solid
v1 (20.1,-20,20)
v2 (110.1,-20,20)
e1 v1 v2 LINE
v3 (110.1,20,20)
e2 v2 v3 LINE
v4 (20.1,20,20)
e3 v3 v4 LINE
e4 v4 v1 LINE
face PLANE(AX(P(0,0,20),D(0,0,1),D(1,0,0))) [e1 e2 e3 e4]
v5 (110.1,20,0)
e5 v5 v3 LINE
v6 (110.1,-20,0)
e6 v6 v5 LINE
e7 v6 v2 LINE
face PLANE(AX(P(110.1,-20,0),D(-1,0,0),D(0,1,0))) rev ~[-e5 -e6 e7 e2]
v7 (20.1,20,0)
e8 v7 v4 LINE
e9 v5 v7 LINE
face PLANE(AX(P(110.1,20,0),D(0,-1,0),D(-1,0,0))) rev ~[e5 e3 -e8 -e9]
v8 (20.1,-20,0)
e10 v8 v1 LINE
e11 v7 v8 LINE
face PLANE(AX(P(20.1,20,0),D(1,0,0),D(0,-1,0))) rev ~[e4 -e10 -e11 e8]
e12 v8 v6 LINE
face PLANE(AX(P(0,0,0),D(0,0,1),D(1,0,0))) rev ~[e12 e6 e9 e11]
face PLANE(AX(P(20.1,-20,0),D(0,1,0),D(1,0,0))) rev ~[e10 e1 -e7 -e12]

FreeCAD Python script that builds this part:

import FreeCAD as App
import Part
import Sketcher
from FreeCAD import Vector

doc = App.newDocument("Part")
body = doc.addObject("PartDesign::Body", "Body")

# Sketch on XY plane
sketch1 = body.newObject("Sketcher::SketchObject", "Sketch")
sketch1.AttachmentSupport = (doc.getObject("XY_Plane"), [""])
sketch1.MapMode = "FlatFace"
sketch1.addGeometry([
    Part.LineSegment(Vector(20, 20, 0), Vector(20, -20, 0)),
    Part.LineSegment(Vector(20, -20, 0), Vector(110, -20, 0)),
    Part.LineSegment(Vector(110, -20, 0), Vector(110, 20, 0)),
    Part.LineSegment(Vector(110, 20, 0), Vector(20, 20, 0)),
], False)
sketch1.addConstraint([
    Sketcher.Constraint("Coincident", 0, 2, 1, 1),
    Sketcher.Constraint("Coincident", 1, 2, 2, 1),
    Sketcher.Constraint("Coincident", 2, 2, 3, 1),
    Sketcher.Constraint("Coincident", 3, 2, 0, 1),
    Sketcher.Constraint("Vertical", 0),
    Sketcher.Constraint("Horizontal", 1),
    Sketcher.Constraint("Vertical", 2),
    Sketcher.Constraint("Horizontal", 3),
    Sketcher.Constraint("DistanceX", 1, 1, 1, 2, 90.0),
    Sketcher.Constraint("DistanceY", 0, 2, 0, 1, 40.0),
    Sketcher.Constraint("DistanceY", 0, 2, -1, 1, 20.0),
    Sketcher.Constraint("DistanceX", -1, 1, 0, 2, 20.1),
])
pad1 = body.newObject("PartDesign::Pad", "Pad")
pad1.Profile = sketch1
pad1.Length = 20

doc.recompute()
